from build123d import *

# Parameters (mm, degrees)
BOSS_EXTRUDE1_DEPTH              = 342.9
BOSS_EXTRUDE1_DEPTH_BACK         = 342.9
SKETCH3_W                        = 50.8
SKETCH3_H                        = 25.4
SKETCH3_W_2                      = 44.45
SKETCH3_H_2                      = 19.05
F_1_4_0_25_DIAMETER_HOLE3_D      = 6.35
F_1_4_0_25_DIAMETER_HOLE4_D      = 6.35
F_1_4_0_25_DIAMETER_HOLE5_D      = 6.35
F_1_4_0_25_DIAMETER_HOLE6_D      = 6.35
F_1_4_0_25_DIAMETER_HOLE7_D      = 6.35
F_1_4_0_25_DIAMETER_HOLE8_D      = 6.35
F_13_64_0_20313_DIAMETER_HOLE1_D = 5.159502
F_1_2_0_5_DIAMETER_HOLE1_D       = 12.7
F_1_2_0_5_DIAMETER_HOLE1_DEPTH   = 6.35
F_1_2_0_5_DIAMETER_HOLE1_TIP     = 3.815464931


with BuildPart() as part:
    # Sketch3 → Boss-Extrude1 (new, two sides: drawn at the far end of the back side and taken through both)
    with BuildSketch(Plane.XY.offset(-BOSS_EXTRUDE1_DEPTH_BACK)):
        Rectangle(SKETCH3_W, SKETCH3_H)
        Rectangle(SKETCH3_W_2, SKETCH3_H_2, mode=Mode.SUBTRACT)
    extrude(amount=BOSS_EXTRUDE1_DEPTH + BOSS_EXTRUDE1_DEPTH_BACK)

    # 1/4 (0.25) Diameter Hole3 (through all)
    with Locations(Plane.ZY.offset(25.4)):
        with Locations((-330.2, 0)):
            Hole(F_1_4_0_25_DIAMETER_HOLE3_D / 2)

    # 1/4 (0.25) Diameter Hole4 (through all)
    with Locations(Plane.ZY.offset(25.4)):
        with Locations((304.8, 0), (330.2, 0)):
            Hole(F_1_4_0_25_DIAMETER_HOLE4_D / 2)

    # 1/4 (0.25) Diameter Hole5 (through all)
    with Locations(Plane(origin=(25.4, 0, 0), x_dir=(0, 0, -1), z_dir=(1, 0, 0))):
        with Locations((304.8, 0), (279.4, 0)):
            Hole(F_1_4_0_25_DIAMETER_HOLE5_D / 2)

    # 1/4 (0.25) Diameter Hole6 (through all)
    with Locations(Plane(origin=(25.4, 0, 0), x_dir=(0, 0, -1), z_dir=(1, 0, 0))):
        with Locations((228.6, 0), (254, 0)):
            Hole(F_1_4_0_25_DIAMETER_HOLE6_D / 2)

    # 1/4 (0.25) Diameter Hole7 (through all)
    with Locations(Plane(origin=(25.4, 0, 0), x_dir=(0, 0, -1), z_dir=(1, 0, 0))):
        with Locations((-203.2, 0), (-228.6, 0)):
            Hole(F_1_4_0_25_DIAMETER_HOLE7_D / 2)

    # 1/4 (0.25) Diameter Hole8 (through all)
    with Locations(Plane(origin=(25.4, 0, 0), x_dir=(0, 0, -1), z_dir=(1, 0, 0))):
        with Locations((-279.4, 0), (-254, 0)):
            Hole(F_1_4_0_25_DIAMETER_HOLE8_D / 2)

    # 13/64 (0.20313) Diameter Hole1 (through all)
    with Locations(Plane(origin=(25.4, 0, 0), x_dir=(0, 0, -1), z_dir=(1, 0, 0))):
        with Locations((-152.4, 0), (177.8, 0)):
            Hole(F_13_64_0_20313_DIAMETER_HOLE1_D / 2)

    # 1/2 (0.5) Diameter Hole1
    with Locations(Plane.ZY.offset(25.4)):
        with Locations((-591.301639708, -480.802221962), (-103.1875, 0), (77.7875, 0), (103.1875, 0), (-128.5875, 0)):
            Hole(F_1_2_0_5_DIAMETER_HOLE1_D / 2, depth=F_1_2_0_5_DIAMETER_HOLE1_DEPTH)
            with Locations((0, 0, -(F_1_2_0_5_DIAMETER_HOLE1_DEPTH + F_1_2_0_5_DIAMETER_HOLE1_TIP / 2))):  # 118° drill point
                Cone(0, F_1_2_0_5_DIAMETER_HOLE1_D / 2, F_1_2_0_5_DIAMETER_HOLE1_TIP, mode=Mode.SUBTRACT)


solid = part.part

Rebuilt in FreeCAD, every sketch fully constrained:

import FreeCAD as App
import Part
import Sketcher

V = App.Vector
Q = App.Units.Quantity

doc = App.newDocument("Part")
body = doc.addObject("PartDesign::Body", "Body")

sketch1 = body.newObject("Sketcher::SketchObject", "Sketch")
sketch1.AttachmentSupport = (doc.getObject("XY_Plane"), [""])
sketch1.MapMode = "FlatFace"
sketch1.addGeometry(Part.LineSegment(V(-25.4, 12.7, 0), V(-25.4, -12.7, 0)), False)
sketch1.addGeometry(Part.LineSegment(V(-25.4, -12.7, 0), V(25.4, -12.7, 0)), False)
sketch1.addGeometry(Part.LineSegment(V(25.4, -12.7, 0), V(25.4, 12.7, 0)), False)
sketch1.addGeometry(Part.LineSegment(V(25.4, 12.7, 0), V(-25.4, 12.7, 0)), False)
sketch1.addGeometry(Part.LineSegment(V(22.225, -9.525, 0), V(-22.225, -9.525, 0)), False)
sketch1.addGeometry(Part.LineSegment(V(-22.225, -9.525, 0), V(-22.225, 9.525, 0)), False)
sketch1.addGeometry(Part.LineSegment(V(-22.225, 9.525, 0), V(22.225, 9.525, 0)), False)
sketch1.addGeometry(Part.LineSegment(V(22.225, 9.525, 0), V(22.225, -9.525, 0)), False)
sketch1.addConstraint(Sketcher.Constraint("Coincident", 0, 2, 1, 1))
sketch1.addConstraint(Sketcher.Constraint("Coincident", 1, 2, 2, 1))
sketch1.addConstraint(Sketcher.Constraint("Coincident", 2, 2, 3, 1))
sketch1.addConstraint(Sketcher.Constraint("Coincident", 3, 2, 0, 1))
sketch1.addConstraint(Sketcher.Constraint("Coincident", 4, 2, 5, 1))
sketch1.addConstraint(Sketcher.Constraint("Coincident", 5, 2, 6, 1))
sketch1.addConstraint(Sketcher.Constraint("Coincident", 6, 2, 7, 1))
sketch1.addConstraint(Sketcher.Constraint("Coincident", 7, 2, 4, 1))
sketch1.addConstraint(Sketcher.Constraint("Vertical", 0))
sketch1.addConstraint(Sketcher.Constraint("Horizontal", 1))
sketch1.addConstraint(Sketcher.Constraint("Vertical", 2))
sketch1.addConstraint(Sketcher.Constraint("Horizontal", 3))
sketch1.addConstraint(Sketcher.Constraint("Horizontal", 4))
sketch1.addConstraint(Sketcher.Constraint("Vertical", 5))
sketch1.addConstraint(Sketcher.Constraint("Horizontal", 6))
sketch1.addConstraint(Sketcher.Constraint("Vertical", 7))
sketch1.addConstraint(Sketcher.Constraint("Symmetric", 0, 2, 2, 2, -1, 1))
sketch1.addConstraint(Sketcher.Constraint("Symmetric", 4, 2, 6, 2, -1, 1))
sketch1.addConstraint(Sketcher.Constraint("DistanceX", 1, 1, 1, 2, Q("2 in")))
sketch1.addConstraint(Sketcher.Constraint("DistanceY", 0, 2, 0, 1, Q("1 in")))
sketch1.addConstraint(Sketcher.Constraint("DistanceX", 4, 2, 4, 1, Q("1.75 in")))
sketch1.addConstraint(Sketcher.Constraint("DistanceY", 5, 1, 5, 2, Q("0.75 in")))
pad1 = body.newObject("PartDesign::Pad", "Pad")
pad1.Profile = sketch1
pad1.Type = "TwoLengths"
pad1.Length = Q("13.5 in")
pad1.Length2 = Q("13.5 in")

sketch2 = body.newObject("Sketcher::SketchObject", "Sketch001")
sketch2.AttachmentSupport = (doc.getObject("YZ_Plane"), [""])
sketch2.MapMode = "FlatFace"
sketch2.AttachmentOffset = App.Placement(V(0, 0, -1 * 25.4), App.Rotation())
sketch2.addGeometry(Part.Circle(V(0, -330.2, 0), V(0, 0, 1), 3.175), False)
sketch2.addConstraint(Sketcher.Constraint("PointOnObject", 0, 3, -2))
sketch2.addConstraint(Sketcher.Constraint("Diameter", 0, Q("0.25 in")))
sketch2.addConstraint(Sketcher.Constraint("DistanceY", 0, 3, -1, 1, Q("13 in")))
doc.recompute()
hole = body.newObject("PartDesign::Hole", "Hole")
hole.Profile = sketch2
hole.ThreadType = "None"
hole.Diameter = Q("0.25 in")
hole.DepthType = "ThroughAll"
hole.Reversed = True

sketch3 = body.newObject("Sketcher::SketchObject", "Sketch002")
sketch3.AttachmentSupport = (doc.getObject("YZ_Plane"), [""])
sketch3.MapMode = "FlatFace"
sketch3.AttachmentOffset = App.Placement(V(0, 0, -1 * 25.4), App.Rotation())
sketch3.addGeometry(Part.Circle(V(0, 304.8, 0), V(0, 0, 1), 3.175), False)
sketch3.addGeometry(Part.Circle(V(0, 330.2, 0), V(0, 0, 1), 3.175), False)
sketch3.addConstraint(Sketcher.Constraint("Equal", 0, 1))
sketch3.addConstraint(Sketcher.Constraint("PointOnObject", 0, 3, -2))
sketch3.addConstraint(Sketcher.Constraint("PointOnObject", 1, 3, -2))
sketch3.addConstraint(Sketcher.Constraint("Diameter", 0, Q("0.25 in")))
sketch3.addConstraint(Sketcher.Constraint("DistanceY", -1, 1, 0, 3, Q("12 in")))
sketch3.addConstraint(Sketcher.Constraint("DistanceY", -1, 1, 1, 3, Q("13 in")))
doc.recompute()
hole2 = body.newObject("PartDesign::Hole", "Hole001")
hole2.Profile = sketch3
hole2.ThreadType = "None"
hole2.Diameter = Q("0.25 in")
hole2.DepthType = "ThroughAll"
hole2.Reversed = True

sketch4 = body.newObject("Sketcher::SketchObject", "Sketch003")
sketch4.AttachmentSupport = (doc.getObject("YZ_Plane"), [""])
sketch4.MapMode = "FlatFace"
sketch4.AttachmentOffset = App.Placement(V(0, 0, 1 * 25.4), App.Rotation())
sketch4.addGeometry(Part.Circle(V(0, -304.8, 0), V(0, 0, 1), 3.175), False)
sketch4.addGeometry(Part.Circle(V(0, -279.4, 0), V(0, 0, 1), 3.175), False)
sketch4.addConstraint(Sketcher.Constraint("Equal", 0, 1))
sketch4.addConstraint(Sketcher.Constraint("PointOnObject", 0, 3, -2))
sketch4.addConstraint(Sketcher.Constraint("PointOnObject", 1, 3, -2))
sketch4.addConstraint(Sketcher.Constraint("Diameter", 0, Q("0.25 in")))
sketch4.addConstraint(Sketcher.Constraint("DistanceY", 0, 3, -1, 1, Q("12 in")))
sketch4.addConstraint(Sketcher.Constraint("DistanceY", 1, 3, -1, 1, Q("11 in")))
doc.recompute()
hole3 = body.newObject("PartDesign::Hole", "Hole002")
hole3.Profile = sketch4
hole3.ThreadType = "None"
hole3.Diameter = Q("0.25 in")
hole3.DepthType = "ThroughAll"

sketch5 = body.newObject("Sketcher::SketchObject", "Sketch004")
sketch5.AttachmentSupport = (doc.getObject("YZ_Plane"), [""])
sketch5.MapMode = "FlatFace"
sketch5.AttachmentOffset = App.Placement(V(0, 0, 1 * 25.4), App.Rotation())
sketch5.addGeometry(Part.Circle(V(0, -228.6, 0), V(0, 0, 1), 3.175), False)
sketch5.addGeometry(Part.Circle(V(0, -254, 0), V(0, 0, 1), 3.175), False)
sketch5.addConstraint(Sketcher.Constraint("Equal", 0, 1))
sketch5.addConstraint(Sketcher.Constraint("PointOnObject", 0, 3, -2))
sketch5.addConstraint(Sketcher.Constraint("PointOnObject", 1, 3, -2))
sketch5.addConstraint(Sketcher.Constraint("Diameter", 0, Q("0.25 in")))
sketch5.addConstraint(Sketcher.Constraint("DistanceY", 0, 3, -1, 1, Q("9 in")))
sketch5.addConstraint(Sketcher.Constraint("DistanceY", 1, 3, -1, 1, Q("10 in")))
doc.recompute()
hole4 = body.newObject("PartDesign::Hole", "Hole003")
hole4.Profile = sketch5
hole4.ThreadType = "None"
hole4.Diameter = Q("0.25 in")
hole4.DepthType = "ThroughAll"

sketch6 = body.newObject("Sketcher::SketchObject", "Sketch005")
sketch6.AttachmentSupport = (doc.getObject("YZ_Plane"), [""])
sketch6.MapMode = "FlatFace"
sketch6.AttachmentOffset = App.Placement(V(0, 0, 1 * 25.4), App.Rotation())
sketch6.addGeometry(Part.Circle(V(0, 203.2, 0), V(0, 0, 1), 3.175), False)
sketch6.addGeometry(Part.Circle(V(0, 228.6, 0), V(0, 0, 1), 3.175), False)
sketch6.addConstraint(Sketcher.Constraint("Equal", 0, 1))
sketch6.addConstraint(Sketcher.Constraint("PointOnObject", 0, 3, -2))
sketch6.addConstraint(Sketcher.Constraint("PointOnObject", 1, 3, -2))
sketch6.addConstraint(Sketcher.Constraint("Diameter", 0, Q("0.25 in")))
sketch6.addConstraint(Sketcher.Constraint("DistanceY", -1, 1, 0, 3, Q("8 in")))
sketch6.addConstraint(Sketcher.Constraint("DistanceY", -1, 1, 1, 3, Q("9 in")))
doc.recompute()
hole5 = body.newObject("PartDesign::Hole", "Hole004")
hole5.Profile = sketch6
hole5.ThreadType = "None"
hole5.Diameter = Q("0.25 in")
hole5.DepthType = "ThroughAll"

sketch7 = body.newObject("Sketcher::SketchObject", "Sketch006")
sketch7.AttachmentSupport = (doc.getObject("YZ_Plane"), [""])
sketch7.MapMode = "FlatFace"
sketch7.AttachmentOffset = App.Placement(V(0, 0, 1 * 25.4), App.Rotation())
sketch7.addGeometry(Part.Circle(V(0, 279.4, 0), V(0, 0, 1), 3.175), False)
sketch7.addGeometry(Part.Circle(V(0, 254, 0), V(0, 0, 1), 3.175), False)
sketch7.addConstraint(Sketcher.Constraint("Equal", 0, 1))
sketch7.addConstraint(Sketcher.Constraint("PointOnObject", 0, 3, -2))
sketch7.addConstraint(Sketcher.Constraint("PointOnObject", 1, 3, -2))
sketch7.addConstraint(Sketcher.Constraint("Diameter", 0, Q("0.25 in")))
sketch7.addConstraint(Sketcher.Constraint("DistanceY", -1, 1, 0, 3, Q("11 in")))
sketch7.addConstraint(Sketcher.Constraint("DistanceY", -1, 1, 1, 3, Q("10 in")))
doc.recompute()
hole6 = body.newObject("PartDesign::Hole", "Hole005")
hole6.Profile = sketch7
hole6.ThreadType = "None"
hole6.Diameter = Q("0.25 in")
hole6.DepthType = "ThroughAll"

sketch8 = body.newObject("Sketcher::SketchObject", "Sketch007")
sketch8.AttachmentSupport = (doc.getObject("YZ_Plane"), [""])
sketch8.MapMode = "FlatFace"
sketch8.AttachmentOffset = App.Placement(V(0, 0, 1 * 25.4), App.Rotation())
sketch8.addGeometry(Part.Circle(V(0, 152.4, 0), V(0, 0, 1), 2.579751), False)
sketch8.addGeometry(Part.Circle(V(0, -177.8, 0), V(0, 0, 1), 2.579751), False)
sketch8.addConstraint(Sketcher.Constraint("Equal", 0, 1))
sketch8.addConstraint(Sketcher.Constraint("PointOnObject", 0, 3, -2))
sketch8.addConstraint(Sketcher.Constraint("PointOnObject", 1, 3, -2))
sketch8.addConstraint(Sketcher.Constraint("DistanceY", -1, 1, 0, 3, Q("6 in")))
sketch8.addConstraint(Sketcher.Constraint("DistanceY", 1, 3, -1, 1, Q("7 in")))
sketch8.addConstraint(Sketcher.Constraint("Diameter", 0, 5.159502))
doc.recompute()
hole7 = body.newObject("PartDesign::Hole", "Hole006")
hole7.Profile = sketch8
hole7.ThreadType = "None"
hole7.Diameter = 5.159502
hole7.DepthType = "ThroughAll"

sketch9 = body.newObject("Sketcher::SketchObject", "Sketch008")
sketch9.AttachmentSupport = (doc.getObject("YZ_Plane"), [""])
sketch9.MapMode = "FlatFace"
sketch9.AttachmentOffset = App.Placement(V(0, 0, -1 * 25.4), App.Rotation())
sketch9.addGeometry(Part.Circle(V(-480.802222, -591.30164, 0), V(0, 0, 1), 6.35), False)
sketch9.addGeometry(Part.Circle(V(0, -103.1875, 0), V(0, 0, 1), 6.35), False)
sketch9.addGeometry(Part.Circle(V(0, 77.7875, 0), V(0, 0, 1), 6.35), False)
sketch9.addGeometry(Part.Circle(V(0, 103.1875, 0), V(0, 0, 1), 6.35), False)
sketch9.addGeometry(Part.Circle(V(0, -128.5875, 0), V(0, 0, 1), 6.35), False)
sketch9.addConstraint(Sketcher.Constraint("Equal", 0, 1))
sketch9.addConstraint(Sketcher.Constraint("Equal", 1, 2))
sketch9.addConstraint(Sketcher.Constraint("Equal", 2, 3))
sketch9.addConstraint(Sketcher.Constraint("Equal", 3, 4))
sketch9.addConstraint(Sketcher.Constraint("Symmetric", 1, 3, 3, 3, -1, 1))
sketch9.addConstraint(Sketcher.Constraint("PointOnObject", 1, 3, -2))
sketch9.addConstraint(Sketcher.Constraint("PointOnObject", 2, 3, -2))
sketch9.addConstraint(Sketcher.Constraint("PointOnObject", 4, 3, -2))
sketch9.addConstraint(Sketcher.Constraint("Diameter", 0, Q("0.5 in")))
sketch9.addConstraint(Sketcher.Constraint("DistanceY", 2, 3, 3, 3, Q("1 in")))
sketch9.addConstraint(Sketcher.Constraint("DistanceY", 4, 3, 1, 3, Q("1 in")))
sketch9.addConstraint(Sketcher.Constraint("DistanceY", 1, 3, -1, 1, Q("4.0625 in")))
sketch9.addConstraint(Sketcher.Constraint("DistanceX", 0, 3, -1, 1, 480.802222))
sketch9.addConstraint(Sketcher.Constraint("DistanceY", 0, 3, -1, 1, 591.30164))
doc.recompute()
hole8 = body.newObject("PartDesign::Hole", "Hole007")
hole8.Profile = sketch9
hole8.ThreadType = "None"
hole8.Diameter = Q("0.5 in")
hole8.DepthType = "Dimension"
hole8.Depth = Q("0.25 in")
hole8.DrillPoint = "Angled"
hole8.DrillPointAngle = 118
hole8.Reversed = True

doc.recompute()
